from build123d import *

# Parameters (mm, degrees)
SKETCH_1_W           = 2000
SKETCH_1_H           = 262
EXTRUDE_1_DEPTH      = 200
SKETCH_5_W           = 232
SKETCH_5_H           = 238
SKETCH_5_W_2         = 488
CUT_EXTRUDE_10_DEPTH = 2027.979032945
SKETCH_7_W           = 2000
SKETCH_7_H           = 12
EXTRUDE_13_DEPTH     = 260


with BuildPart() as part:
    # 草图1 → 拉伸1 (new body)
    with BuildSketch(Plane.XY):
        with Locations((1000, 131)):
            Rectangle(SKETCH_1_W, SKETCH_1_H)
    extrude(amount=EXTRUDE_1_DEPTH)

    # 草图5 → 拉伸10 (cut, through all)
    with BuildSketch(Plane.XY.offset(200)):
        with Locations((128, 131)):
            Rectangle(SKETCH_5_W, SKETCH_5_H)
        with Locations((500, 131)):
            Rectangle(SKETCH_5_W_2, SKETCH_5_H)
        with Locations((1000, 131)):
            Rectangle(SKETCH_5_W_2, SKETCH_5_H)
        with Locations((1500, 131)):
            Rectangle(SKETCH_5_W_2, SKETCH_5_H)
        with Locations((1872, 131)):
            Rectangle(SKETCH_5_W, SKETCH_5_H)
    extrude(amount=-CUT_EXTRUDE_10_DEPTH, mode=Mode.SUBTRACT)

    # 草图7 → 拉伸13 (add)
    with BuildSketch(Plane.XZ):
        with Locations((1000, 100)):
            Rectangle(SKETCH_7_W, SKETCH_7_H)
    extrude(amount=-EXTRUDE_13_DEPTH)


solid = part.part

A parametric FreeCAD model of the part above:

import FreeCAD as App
import Part
import Sketcher
Q = App.Units.Quantity

doc = App.newDocument("Part")
body = doc.addObject("PartDesign::Body", "Body")

# Sketch on XY plane
sketch1 = body.newObject("Sketcher::SketchObject", "Sketch")
sketch1.AttachmentSupport = (doc.getObject("XY_Plane"), [""])
sketch1.MapMode = "FlatFace"
sketch1.addGeometry([
    Part.LineSegment(App.Vector(0, 262, 0), App.Vector(0, 0, 0)),
    Part.LineSegment(App.Vector(0, 0, 0), App.Vector(2000, 0, 0)),
    Part.LineSegment(App.Vector(2000, 0, 0), App.Vector(2000, 262, 0)),
    Part.LineSegment(App.Vector(2000, 262, 0), App.Vector(0, 262, 0)),
], False)
sketch1.addConstraint([
    Sketcher.Constraint("Coincident", 0, 2, 1, 1),
    Sketcher.Constraint("Coincident", 1, 2, 2, 1),
    Sketcher.Constraint("Coincident", 2, 2, 3, 1),
    Sketcher.Constraint("Coincident", 3, 2, 0, 1),
    Sketcher.Constraint("Vertical", 0),
    Sketcher.Constraint("Horizontal", 1),
    Sketcher.Constraint("Vertical", 2),
    Sketcher.Constraint("Horizontal", 3),
    Sketcher.Constraint("Coincident", 0, 2, -1, 1),
    Sketcher.Constraint("DistanceX", 1, 1, 1, 2, Q("2000 mm")),
    Sketcher.Constraint("DistanceY", 0, 2, 0, 1, Q("262 mm")),
])
pad1 = body.newObject("PartDesign::Pad", "Pad")
pad1.Profile = sketch1
pad1.Length = 200

# Sketch on XY plane
sketch2 = body.newObject("Sketcher::SketchObject", "Sketch001")
sketch2.AttachmentSupport = (doc.getObject("XY_Plane"), [""])
sketch2.MapMode = "FlatFace"
sketch2.AttachmentOffset = App.Placement(App.Vector(0, 0, 200), App.Rotation())
sketch2.addGeometry([
    Part.LineSegment(App.Vector(12, 250, 0), App.Vector(12, 12, 0)),  # 0
    Part.LineSegment(App.Vector(12, 12, 0), App.Vector(244, 12, 0)),  # 1
    Part.LineSegment(App.Vector(244, 12, 0), App.Vector(244, 250, 0)),  # 2
    Part.LineSegment(App.Vector(244, 250, 0), App.Vector(12, 250, 0)),  # 3
    Part.LineSegment(App.Vector(256, 250, 0), App.Vector(256, 12, 0)),  # 4
    Part.LineSegment(App.Vector(256, 12, 0), App.Vector(744, 12, 0)),  # 5
    Part.LineSegment(App.Vector(744, 12, 0), App.Vector(744, 250, 0)),  # 6
    Part.LineSegment(App.Vector(744, 250, 0), App.Vector(256, 250, 0)),  # 7
    Part.LineSegment(App.Vector(756, 250, 0), App.Vector(756, 12, 0)),  # 8
    Part.LineSegment(App.Vector(756, 12, 0), App.Vector(1244, 12, 0)),  # 9
    Part.LineSegment(App.Vector(1244, 12, 0), App.Vector(1244, 250, 0)),  # 10
    Part.LineSegment(App.Vector(1244, 250, 0), App.Vector(756, 250, 0)),  # 11
    Part.LineSegment(App.Vector(1256, 250, 0), App.Vector(1256, 12, 0)),  # 12
    Part.LineSegment(App.Vector(1256, 12, 0), App.Vector(1744, 12, 0)),  # 13
    Part.LineSegment(App.Vector(1744, 12, 0), App.Vector(1744, 250, 0)),  # 14
    Part.LineSegment(App.Vector(1744, 250, 0), App.Vector(1256, 250, 0)),  # 15
    Part.LineSegment(App.Vector(1756, 250, 0), App.Vector(1756, 12, 0)),  # 16
    Part.LineSegment(App.Vector(1756, 12, 0), App.Vector(1988, 12, 0)),  # 17
    Part.LineSegment(App.Vector(1988, 12, 0), App.Vector(1988, 250, 0)),  # 18
    Part.LineSegment(App.Vector(1988, 250, 0), App.Vector(1756, 250, 0)),  # 19
], False)
sketch2.addConstraint([
    Sketcher.Constraint("Coincident", 0, 2, 1, 1),
    Sketcher.Constraint("Coincident", 1, 2, 2, 1),
    Sketcher.Constraint("Coincident", 2, 2, 3, 1),
    Sketcher.Constraint("Coincident", 3, 2, 0, 1),
    Sketcher.Constraint("Coincident", 4, 2, 5, 1),
    Sketcher.Constraint("Coincident", 5, 2, 6, 1),
    Sketcher.Constraint("Coincident", 6, 2, 7, 1),
    Sketcher.Constraint("Coincident", 7, 2, 4, 1),
    Sketcher.Constraint("Coincident", 8, 2, 9, 1),
    Sketcher.Constraint("Coincident", 9, 2, 10, 1),
    Sketcher.Constraint("Coincident", 10, 2, 11, 1),
    Sketcher.Constraint("Coincident", 11, 2, 8, 1),
    Sketcher.Constraint("Coincident", 12, 2, 13, 1),
    Sketcher.Constraint("Coincident", 13, 2, 14, 1),
    Sketcher.Constraint("Coincident", 14, 2, 15, 1),
    Sketcher.Constraint("Coincident", 15, 2, 12, 1),
    Sketcher.Constraint("Coincident", 16, 2, 17, 1),
    Sketcher.Constraint("Coincident", 17, 2, 18, 1),
    Sketcher.Constraint("Coincident", 18, 2, 19, 1),
    Sketcher.Constraint("Coincident", 19, 2, 16, 1),
    Sketcher.Constraint("Vertical", 0),
    Sketcher.Constraint("Horizontal", 1),
    Sketcher.Constraint("Vertical", 2),
    Sketcher.Constraint("Horizontal", 3),
    Sketcher.Constraint("Vertical", 4),
    Sketcher.Constraint("Horizontal", 5),
    Sketcher.Constraint("Vertical", 6),
    Sketcher.Constraint("Horizontal", 7),
    Sketcher.Constraint("Vertical", 8),
    Sketcher.Constraint("Horizontal", 9),
    Sketcher.Constraint("Vertical", 10),
    Sketcher.Constraint("Horizontal", 11),
    Sketcher.Constraint("Vertical", 12),
    Sketcher.Constraint("Horizontal", 13),
    Sketcher.Constraint("Vertical", 14),
    Sketcher.Constraint("Horizontal", 15),
    Sketcher.Constraint("Vertical", 16),
    Sketcher.Constraint("Horizontal", 17),
    Sketcher.Constraint("Vertical", 18),
    Sketcher.Constraint("Horizontal", 19),
    Sketcher.Constraint("Horizontal", 1, 2, 4, 2),
    Sketcher.Constraint("Horizontal", 3, 2, 6, 2),
    Sketcher.Constraint("Horizontal", 5, 2, 8, 2),
    Sketcher.Constraint("Horizontal", 7, 2, 10, 2),
    Sketcher.Constraint("Horizontal", 9, 2, 12, 2),
    Sketcher.Constraint("Horizontal", 11, 2, 14, 2),
    Sketcher.Constraint("Horizontal", 13, 2, 16, 2),
    Sketcher.Constraint("Horizontal", 15, 2, 18, 2),
    Sketcher.Constraint("Equal", 7, 9),
    Sketcher.Constraint("Equal", 11, 13),
    Sketcher.Constraint("Equal", 3, 17),
    Sketcher.Constraint("DistanceX", 1, 1, 1, 2, Q("232 mm")),
    Sketcher.Constraint("DistanceX", 5, 1, 5, 2, Q("488 mm")),
    Sketcher.Constraint("DistanceY", 0, 2, 0, 1, Q("238 mm")),
    Sketcher.Constraint("DistanceX", -1, 1, 0, 2, Q("12 mm")),
    Sketcher.Constraint("DistanceY", -1, 1, 0, 2, Q("12 mm")),
    Sketcher.Constraint("DistanceX", -1, 1, 4, 2, Q("256 mm")),
    Sketcher.Constraint("DistanceX", -1, 1, 8, 2, Q("756 mm")),
    Sketcher.Constraint("DistanceX", -1, 1, 12, 2, Q("1256 mm")),
    Sketcher.Constraint("DistanceX", -1, 1, 16, 2, Q("1756 mm")),
])
pocket1 = body.newObject("PartDesign::Pocket", "Pocket")
pocket1.Profile = sketch2
pocket1.Type = "ThroughAll"

# Sketch on XZ plane
sketch3 = body.newObject("Sketcher::SketchObject", "Sketch002")
sketch3.AttachmentSupport = (doc.getObject("XZ_Plane"), [""])
sketch3.MapMode = "FlatFace"
sketch3.addGeometry([
    Part.LineSegment(App.Vector(0, 106, 0), App.Vector(0, 94, 0)),
    Part.LineSegment(App.Vector(0, 94, 0), App.Vector(2000, 94, 0)),
    Part.LineSegment(App.Vector(2000, 94, 0), App.Vector(2000, 106, 0)),
    Part.LineSegment(App.Vector(2000, 106, 0), App.Vector(0, 106, 0)),
], False)
sketch3.addConstraint([
    Sketcher.Constraint("Coincident", 0, 2, 1, 1),
    Sketcher.Constraint("Coincident", 1, 2, 2, 1),
    Sketcher.Constraint("Coincident", 2, 2, 3, 1),
    Sketcher.Constraint("Coincident", 3, 2, 0, 1),
    Sketcher.Constraint("Vertical", 0),
    Sketcher.Constraint("Horizontal", 1),
    Sketcher.Constraint("Vertical", 2),
    Sketcher.Constraint("Horizontal", 3),
    Sketcher.Constraint("PointOnObject", 0, 2, -2),
    Sketcher.Constraint("DistanceX", 1, 1, 1, 2, Q("2000 mm")),
    Sketcher.Constraint("DistanceY", 0, 2, 0, 1, Q("12 mm")),
    Sketcher.Constraint("DistanceY", -1, 1, 0, 2, Q("94 mm")),
])
pad2 = body.newObject("PartDesign::Pad", "Pad001")
pad2.Profile = sketch3
pad2.Length = 260
pad2.Reversed = True

doc.recompute()
